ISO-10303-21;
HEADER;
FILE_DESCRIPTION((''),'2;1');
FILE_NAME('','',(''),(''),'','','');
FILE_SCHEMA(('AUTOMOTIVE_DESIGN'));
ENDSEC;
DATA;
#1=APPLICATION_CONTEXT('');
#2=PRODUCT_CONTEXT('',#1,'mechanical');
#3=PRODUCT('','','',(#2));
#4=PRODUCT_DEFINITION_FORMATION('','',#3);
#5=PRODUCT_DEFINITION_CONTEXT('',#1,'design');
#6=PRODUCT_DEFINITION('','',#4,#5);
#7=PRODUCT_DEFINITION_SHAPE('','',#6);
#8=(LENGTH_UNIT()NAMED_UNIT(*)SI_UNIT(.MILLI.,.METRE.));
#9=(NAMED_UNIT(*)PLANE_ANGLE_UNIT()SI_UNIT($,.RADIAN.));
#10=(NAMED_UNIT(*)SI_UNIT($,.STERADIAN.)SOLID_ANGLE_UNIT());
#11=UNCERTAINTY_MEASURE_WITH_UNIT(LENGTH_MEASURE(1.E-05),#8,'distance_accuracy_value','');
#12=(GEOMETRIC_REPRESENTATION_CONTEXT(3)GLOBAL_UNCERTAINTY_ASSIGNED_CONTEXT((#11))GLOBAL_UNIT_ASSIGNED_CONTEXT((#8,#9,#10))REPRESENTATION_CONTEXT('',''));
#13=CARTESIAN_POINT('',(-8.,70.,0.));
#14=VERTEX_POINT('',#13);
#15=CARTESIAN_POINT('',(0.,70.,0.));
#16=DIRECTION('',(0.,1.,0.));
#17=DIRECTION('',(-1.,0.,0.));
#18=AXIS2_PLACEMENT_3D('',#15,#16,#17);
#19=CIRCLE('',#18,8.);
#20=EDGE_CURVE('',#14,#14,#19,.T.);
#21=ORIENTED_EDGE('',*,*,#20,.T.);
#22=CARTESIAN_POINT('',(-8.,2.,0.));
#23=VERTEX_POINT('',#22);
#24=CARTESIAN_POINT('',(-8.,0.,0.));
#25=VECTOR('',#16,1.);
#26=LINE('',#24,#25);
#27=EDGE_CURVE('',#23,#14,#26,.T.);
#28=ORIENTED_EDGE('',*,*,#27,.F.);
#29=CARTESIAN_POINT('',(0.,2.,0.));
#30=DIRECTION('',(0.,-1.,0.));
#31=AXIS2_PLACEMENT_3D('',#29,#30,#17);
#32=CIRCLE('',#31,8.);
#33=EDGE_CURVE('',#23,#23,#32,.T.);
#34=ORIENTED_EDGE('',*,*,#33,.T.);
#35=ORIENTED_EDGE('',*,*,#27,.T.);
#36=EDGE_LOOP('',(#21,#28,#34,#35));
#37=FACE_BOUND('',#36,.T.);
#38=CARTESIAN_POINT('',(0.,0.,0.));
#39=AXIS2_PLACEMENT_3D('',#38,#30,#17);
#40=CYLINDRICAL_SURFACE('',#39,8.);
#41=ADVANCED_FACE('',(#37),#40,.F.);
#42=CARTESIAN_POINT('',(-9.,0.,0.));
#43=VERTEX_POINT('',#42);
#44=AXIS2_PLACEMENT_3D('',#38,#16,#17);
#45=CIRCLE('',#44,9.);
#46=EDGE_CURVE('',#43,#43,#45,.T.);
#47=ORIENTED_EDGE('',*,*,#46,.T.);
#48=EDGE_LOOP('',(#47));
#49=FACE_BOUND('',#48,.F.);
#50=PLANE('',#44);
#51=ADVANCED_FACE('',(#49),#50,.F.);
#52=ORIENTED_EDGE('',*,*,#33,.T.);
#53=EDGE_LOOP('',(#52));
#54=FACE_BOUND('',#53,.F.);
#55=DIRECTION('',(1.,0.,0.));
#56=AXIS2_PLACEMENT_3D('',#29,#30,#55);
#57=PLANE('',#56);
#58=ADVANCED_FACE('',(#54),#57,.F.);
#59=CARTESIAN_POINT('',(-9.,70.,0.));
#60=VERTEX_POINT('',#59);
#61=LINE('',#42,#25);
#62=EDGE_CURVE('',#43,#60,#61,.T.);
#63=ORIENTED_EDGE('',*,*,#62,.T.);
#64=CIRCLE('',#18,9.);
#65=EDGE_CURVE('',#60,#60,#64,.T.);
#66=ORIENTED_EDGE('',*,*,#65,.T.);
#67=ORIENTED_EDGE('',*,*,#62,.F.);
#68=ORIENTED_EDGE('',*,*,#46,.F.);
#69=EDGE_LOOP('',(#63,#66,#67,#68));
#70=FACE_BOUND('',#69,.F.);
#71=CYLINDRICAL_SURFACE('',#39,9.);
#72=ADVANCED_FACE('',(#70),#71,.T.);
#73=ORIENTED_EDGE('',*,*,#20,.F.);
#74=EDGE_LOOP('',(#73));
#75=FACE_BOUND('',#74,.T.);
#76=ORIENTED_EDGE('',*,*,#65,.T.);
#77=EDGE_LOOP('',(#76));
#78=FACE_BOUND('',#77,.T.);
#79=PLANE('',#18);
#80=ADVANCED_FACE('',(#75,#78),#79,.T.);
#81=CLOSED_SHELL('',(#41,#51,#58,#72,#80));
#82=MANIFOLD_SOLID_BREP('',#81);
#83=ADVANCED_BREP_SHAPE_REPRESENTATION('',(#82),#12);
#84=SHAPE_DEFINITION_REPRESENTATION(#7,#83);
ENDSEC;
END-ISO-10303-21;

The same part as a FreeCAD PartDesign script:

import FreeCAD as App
import Part
import Sketcher
from FreeCAD import Vector
Q = App.Units.Quantity

doc = App.newDocument("Part")
body = doc.addObject("PartDesign::Body", "Body")

# Sketch on XZ plane
sketch1 = doc.addObject("Sketcher::SketchObject", "Sketch")
body.addObject(sketch1)
sketch1.AttachmentSupport = (doc.XZ_Plane, [""])
sketch1.MapMode = "FlatFace"
sketch1.addGeometry(Part.Circle(Vector(0, 0, 0), Vector(0, 0, 1), 9), False)
sketch1.addGeometry(Part.Circle(Vector(0, 0, 0), Vector(0, 0, 1), 8), False)
sketch1.addConstraint(Sketcher.Constraint("Coincident", 0, 3, -1, 1))
sketch1.addConstraint(Sketcher.Constraint("Coincident", 1, 3, -1, 1))
sketch1.addConstraint(Sketcher.Constraint("Diameter", 0, Q("18 mm")))
sketch1.addConstraint(Sketcher.Constraint("Diameter", 1, Q("16 mm")))
pad1 = doc.addObject("PartDesign::Pad", "Pad")
body.addObject(pad1)
pad1.Profile = sketch1
pad1.Length = 70
pad1.Reversed = True

# Sketch on XZ plane
sketch2 = doc.addObject("Sketcher::SketchObject", "Sketch001")
body.addObject(sketch2)
sketch2.AttachmentSupport = (doc.XZ_Plane, [""])
sketch2.MapMode = "FlatFace"
sketch2.addGeometry(Part.Circle(Vector(0, 0, 0), Vector(0, 0, 1), 8), False)
sketch2.addConstraint(Sketcher.Constraint("Coincident", 0, 3, -1, 1))
sketch2.addConstraint(Sketcher.Constraint("Diameter", 0, Q("16 mm")))
pad2 = doc.addObject("PartDesign::Pad", "Pad001")
body.addObject(pad2)
pad2.Profile = sketch2
pad2.Length = 2
pad2.Reversed = True

doc.recompute()
